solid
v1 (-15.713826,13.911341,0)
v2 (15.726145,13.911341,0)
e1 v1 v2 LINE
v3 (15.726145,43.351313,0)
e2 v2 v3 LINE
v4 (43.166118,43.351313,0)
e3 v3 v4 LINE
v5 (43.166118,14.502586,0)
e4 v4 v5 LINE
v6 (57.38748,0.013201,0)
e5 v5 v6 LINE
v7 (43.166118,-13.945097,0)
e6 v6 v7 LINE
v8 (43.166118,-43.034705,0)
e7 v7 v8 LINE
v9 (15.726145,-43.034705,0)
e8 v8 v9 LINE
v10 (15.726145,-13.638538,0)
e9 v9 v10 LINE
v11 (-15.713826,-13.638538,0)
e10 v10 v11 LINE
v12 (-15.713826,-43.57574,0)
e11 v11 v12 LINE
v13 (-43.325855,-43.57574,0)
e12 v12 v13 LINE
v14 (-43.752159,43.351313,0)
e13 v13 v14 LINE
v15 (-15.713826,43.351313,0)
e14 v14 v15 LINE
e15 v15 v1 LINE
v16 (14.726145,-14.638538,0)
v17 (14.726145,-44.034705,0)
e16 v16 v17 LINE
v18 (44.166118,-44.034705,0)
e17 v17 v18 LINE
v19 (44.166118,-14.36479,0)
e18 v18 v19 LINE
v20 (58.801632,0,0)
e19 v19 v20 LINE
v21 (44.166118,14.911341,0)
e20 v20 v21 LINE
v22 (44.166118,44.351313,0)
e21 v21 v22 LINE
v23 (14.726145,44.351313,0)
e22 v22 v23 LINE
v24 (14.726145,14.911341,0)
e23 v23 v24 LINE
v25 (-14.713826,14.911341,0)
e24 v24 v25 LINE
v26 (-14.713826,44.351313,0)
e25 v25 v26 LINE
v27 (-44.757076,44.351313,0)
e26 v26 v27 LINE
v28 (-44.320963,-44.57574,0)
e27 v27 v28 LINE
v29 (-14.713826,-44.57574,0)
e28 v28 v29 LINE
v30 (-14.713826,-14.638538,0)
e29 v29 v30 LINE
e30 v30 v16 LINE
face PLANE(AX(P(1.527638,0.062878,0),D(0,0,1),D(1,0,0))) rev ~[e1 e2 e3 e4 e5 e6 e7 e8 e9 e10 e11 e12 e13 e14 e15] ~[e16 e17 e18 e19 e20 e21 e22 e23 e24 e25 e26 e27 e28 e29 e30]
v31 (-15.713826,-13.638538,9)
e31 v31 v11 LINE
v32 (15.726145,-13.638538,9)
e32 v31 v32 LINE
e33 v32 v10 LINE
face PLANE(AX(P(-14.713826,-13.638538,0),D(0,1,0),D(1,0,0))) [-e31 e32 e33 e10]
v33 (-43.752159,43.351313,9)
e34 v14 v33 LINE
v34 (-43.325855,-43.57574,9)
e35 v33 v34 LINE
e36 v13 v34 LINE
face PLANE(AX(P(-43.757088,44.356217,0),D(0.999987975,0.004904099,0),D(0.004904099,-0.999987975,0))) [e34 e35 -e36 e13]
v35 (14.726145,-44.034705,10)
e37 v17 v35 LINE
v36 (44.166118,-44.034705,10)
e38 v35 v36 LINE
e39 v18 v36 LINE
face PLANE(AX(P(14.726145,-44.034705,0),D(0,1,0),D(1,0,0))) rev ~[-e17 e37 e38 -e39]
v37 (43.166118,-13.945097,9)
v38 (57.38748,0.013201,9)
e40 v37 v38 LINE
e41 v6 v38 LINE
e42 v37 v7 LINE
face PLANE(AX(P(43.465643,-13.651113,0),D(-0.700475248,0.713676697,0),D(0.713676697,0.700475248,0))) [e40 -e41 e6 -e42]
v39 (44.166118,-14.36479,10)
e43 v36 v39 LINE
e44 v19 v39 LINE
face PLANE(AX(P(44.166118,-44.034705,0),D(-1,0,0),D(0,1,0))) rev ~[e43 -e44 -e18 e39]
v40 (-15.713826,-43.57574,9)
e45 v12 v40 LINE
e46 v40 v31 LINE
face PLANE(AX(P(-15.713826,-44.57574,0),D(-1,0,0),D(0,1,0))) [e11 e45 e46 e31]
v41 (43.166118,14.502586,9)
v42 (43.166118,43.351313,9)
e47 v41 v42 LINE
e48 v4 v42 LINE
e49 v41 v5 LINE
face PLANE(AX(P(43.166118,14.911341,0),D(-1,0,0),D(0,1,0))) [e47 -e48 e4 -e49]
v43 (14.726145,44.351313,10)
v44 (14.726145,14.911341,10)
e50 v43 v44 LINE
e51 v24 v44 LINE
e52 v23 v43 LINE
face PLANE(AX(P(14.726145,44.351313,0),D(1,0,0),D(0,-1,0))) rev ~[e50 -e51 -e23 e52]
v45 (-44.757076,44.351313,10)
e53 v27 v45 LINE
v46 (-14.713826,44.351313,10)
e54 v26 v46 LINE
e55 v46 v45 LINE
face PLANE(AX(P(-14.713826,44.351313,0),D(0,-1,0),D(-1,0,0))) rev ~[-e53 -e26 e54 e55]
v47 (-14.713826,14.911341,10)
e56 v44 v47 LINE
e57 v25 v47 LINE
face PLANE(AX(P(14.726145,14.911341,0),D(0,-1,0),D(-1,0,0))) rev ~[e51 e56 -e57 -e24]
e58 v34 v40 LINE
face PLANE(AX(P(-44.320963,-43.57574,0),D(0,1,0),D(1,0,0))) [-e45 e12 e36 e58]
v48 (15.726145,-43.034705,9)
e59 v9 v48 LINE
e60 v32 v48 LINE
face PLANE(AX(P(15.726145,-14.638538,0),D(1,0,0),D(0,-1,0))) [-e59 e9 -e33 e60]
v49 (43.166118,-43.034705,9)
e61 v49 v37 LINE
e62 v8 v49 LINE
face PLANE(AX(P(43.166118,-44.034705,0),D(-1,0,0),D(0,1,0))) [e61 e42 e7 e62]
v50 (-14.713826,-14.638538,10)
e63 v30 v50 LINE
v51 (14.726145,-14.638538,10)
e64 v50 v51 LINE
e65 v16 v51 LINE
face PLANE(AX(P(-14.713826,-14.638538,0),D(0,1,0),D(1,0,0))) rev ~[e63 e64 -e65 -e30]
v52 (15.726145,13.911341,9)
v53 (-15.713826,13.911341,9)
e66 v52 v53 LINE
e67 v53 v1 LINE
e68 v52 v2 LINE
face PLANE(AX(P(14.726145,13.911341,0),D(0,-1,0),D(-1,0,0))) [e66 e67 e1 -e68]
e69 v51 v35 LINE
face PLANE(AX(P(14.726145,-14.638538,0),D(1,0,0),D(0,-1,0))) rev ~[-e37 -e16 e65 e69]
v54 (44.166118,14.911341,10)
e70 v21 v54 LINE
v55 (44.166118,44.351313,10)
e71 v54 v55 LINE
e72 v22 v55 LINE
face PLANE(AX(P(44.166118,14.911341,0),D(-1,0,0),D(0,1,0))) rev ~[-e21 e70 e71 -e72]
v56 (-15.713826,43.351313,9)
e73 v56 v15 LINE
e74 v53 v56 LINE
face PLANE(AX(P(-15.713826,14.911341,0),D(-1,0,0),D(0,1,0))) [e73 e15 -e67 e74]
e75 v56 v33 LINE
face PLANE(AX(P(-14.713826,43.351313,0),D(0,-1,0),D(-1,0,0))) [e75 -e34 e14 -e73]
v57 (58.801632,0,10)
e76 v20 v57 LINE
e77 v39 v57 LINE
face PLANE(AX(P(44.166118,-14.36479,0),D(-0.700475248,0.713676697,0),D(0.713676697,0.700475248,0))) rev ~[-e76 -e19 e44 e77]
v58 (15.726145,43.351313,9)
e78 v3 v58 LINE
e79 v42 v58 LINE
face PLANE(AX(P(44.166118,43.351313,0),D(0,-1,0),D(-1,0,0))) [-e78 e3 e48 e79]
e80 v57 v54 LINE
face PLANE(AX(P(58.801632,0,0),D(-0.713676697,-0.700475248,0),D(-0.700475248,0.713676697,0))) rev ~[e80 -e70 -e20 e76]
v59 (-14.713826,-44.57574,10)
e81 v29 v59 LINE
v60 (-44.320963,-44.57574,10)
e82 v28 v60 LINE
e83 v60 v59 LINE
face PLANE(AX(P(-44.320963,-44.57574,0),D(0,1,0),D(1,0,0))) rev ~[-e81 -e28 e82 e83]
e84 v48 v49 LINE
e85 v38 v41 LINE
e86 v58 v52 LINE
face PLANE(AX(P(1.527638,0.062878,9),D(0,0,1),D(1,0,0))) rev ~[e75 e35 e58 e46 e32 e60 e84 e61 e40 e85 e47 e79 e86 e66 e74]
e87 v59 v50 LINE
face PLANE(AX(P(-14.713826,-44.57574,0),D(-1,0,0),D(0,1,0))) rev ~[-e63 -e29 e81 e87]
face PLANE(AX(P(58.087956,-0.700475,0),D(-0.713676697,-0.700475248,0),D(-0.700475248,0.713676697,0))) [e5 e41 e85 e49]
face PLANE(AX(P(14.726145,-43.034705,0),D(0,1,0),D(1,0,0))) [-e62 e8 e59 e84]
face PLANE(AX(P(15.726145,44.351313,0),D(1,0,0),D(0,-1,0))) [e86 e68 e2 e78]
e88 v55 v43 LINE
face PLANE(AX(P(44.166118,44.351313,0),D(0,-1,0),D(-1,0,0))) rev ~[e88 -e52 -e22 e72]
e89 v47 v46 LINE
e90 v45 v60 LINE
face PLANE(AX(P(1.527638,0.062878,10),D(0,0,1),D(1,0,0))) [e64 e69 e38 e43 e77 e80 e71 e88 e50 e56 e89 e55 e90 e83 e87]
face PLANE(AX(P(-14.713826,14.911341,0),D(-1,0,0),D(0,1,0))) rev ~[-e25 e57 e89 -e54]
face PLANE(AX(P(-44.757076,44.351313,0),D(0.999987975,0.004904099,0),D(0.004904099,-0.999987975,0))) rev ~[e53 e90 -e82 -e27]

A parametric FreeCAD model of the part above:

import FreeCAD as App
import Part
import Sketcher
from FreeCAD import Vector
Q = App.Units.Quantity


def faces_at(feature, points):
    """Names of the faces that lie closest to the given points."""
    faces = feature.Shape.Faces
    near = lambda p: min(range(len(faces)), key=lambda i: faces[i].distToShape(Part.Vertex(*p))[0])
    return sorted({f"Face{near(p) + 1}" for p in points})


def add_polygon(sketch, points):
    """Adds a closed chain of lines whose ends are joined by coincident constraints."""
    first, n = sketch.GeometryCount, len(points)
    for a, b in zip(points, points[1:] + points[:1]):
        sketch.addGeometry(Part.LineSegment(App.Vector(*a, 0), App.Vector(*b, 0)), False)
    for i in range(n):
        sketch.addConstraint(Sketcher.Constraint("Coincident", first + i, 2, first + (i + 1) % n, 1))

doc = App.newDocument("Part")
body = doc.addObject("PartDesign::Body", "Body")

sketch1 = body.newObject("Sketcher::SketchObject", "Sketch")
sketch1.AttachmentSupport = (doc.getObject("XY_Plane"), [""])
sketch1.MapMode = "FlatFace"
add_polygon(sketch1, [(-15, 44), (-45, 44), (-44, -45), (-15, -45), (-15, -15), (15, -15), (15, -44), (44, -44), (44, -14), (59, 0), (44, 15), (44, 44), (15, 44), (15, 15), (-15, 15)])
sketch1.addConstraint([
    Sketcher.Constraint("Horizontal", 0),
    Sketcher.Constraint("Horizontal", 2),
    Sketcher.Constraint("Vertical", 3),
    Sketcher.Constraint("Horizontal", 4),
    Sketcher.Constraint("Vertical", 5),
    Sketcher.Constraint("Horizontal", 6),
    Sketcher.Constraint("Vertical", 7),
    Sketcher.Constraint("Vertical", 10),
    Sketcher.Constraint("Horizontal", 11),
    Sketcher.Constraint("Vertical", 12),
    Sketcher.Constraint("Horizontal", 13),
    Sketcher.Constraint("Vertical", 14),
    Sketcher.Constraint("PointOnObject", 8, 2, -1),
    Sketcher.Constraint("Perpendicular", 8, 9),
    Sketcher.Constraint("Horizontal", 0, 2, 10, 2),
    Sketcher.Constraint("Horizontal", 9, 2, 12, 2),
    Sketcher.Constraint("Vertical", 7, 2, 9, 2),
    Sketcher.Constraint("Vertical", 5, 2, 11, 2),
    Sketcher.Constraint("Vertical", 3, 2, 13, 2),
    Sketcher.Constraint("Equal", 4, 6),
    Sketcher.Constraint("Equal", 13, 10),
    Sketcher.Constraint("DistanceX", 0, 2, 0, 1, Q("30.04325 mm")),
    Sketcher.Constraint("DistanceX", 4, 1, 4, 2, Q("29.439971 mm")),
    Sketcher.Constraint("DistanceX", 2, 1, 2, 2, Q("29.607138 mm")),
    Sketcher.Constraint("DistanceY", 3, 1, 3, 2, Q("29.937202 mm")),
    Sketcher.Constraint("DistanceY", 5, 2, 5, 1, Q("29.396167 mm")),
    Sketcher.Constraint("DistanceY", 7, 1, 7, 2, Q("29.669915 mm")),
    Sketcher.Constraint("DistanceY", 1, 2, -1, 1, Q("44.57574 mm")),
    Sketcher.Constraint("DistanceY", -1, 1, 9, 2, Q("14.911341 mm")),
    Sketcher.Constraint("DistanceX", 0, 2, -1, 1, Q("44.757076 mm")),
])
pad1 = body.newObject("PartDesign::Pad", "Pad")
pad1.Profile = sketch1
pad1.Length = 10
doc.recompute()

thickness = body.newObject("PartDesign::Thickness", "Thickness")
thickness.Base = (pad1, faces_at(pad1, [(7.022, -0.112, 0)]))
thickness.Value = 1
thickness.Reversed = True
thickness.Join = "Intersection"

doc.recompute()
